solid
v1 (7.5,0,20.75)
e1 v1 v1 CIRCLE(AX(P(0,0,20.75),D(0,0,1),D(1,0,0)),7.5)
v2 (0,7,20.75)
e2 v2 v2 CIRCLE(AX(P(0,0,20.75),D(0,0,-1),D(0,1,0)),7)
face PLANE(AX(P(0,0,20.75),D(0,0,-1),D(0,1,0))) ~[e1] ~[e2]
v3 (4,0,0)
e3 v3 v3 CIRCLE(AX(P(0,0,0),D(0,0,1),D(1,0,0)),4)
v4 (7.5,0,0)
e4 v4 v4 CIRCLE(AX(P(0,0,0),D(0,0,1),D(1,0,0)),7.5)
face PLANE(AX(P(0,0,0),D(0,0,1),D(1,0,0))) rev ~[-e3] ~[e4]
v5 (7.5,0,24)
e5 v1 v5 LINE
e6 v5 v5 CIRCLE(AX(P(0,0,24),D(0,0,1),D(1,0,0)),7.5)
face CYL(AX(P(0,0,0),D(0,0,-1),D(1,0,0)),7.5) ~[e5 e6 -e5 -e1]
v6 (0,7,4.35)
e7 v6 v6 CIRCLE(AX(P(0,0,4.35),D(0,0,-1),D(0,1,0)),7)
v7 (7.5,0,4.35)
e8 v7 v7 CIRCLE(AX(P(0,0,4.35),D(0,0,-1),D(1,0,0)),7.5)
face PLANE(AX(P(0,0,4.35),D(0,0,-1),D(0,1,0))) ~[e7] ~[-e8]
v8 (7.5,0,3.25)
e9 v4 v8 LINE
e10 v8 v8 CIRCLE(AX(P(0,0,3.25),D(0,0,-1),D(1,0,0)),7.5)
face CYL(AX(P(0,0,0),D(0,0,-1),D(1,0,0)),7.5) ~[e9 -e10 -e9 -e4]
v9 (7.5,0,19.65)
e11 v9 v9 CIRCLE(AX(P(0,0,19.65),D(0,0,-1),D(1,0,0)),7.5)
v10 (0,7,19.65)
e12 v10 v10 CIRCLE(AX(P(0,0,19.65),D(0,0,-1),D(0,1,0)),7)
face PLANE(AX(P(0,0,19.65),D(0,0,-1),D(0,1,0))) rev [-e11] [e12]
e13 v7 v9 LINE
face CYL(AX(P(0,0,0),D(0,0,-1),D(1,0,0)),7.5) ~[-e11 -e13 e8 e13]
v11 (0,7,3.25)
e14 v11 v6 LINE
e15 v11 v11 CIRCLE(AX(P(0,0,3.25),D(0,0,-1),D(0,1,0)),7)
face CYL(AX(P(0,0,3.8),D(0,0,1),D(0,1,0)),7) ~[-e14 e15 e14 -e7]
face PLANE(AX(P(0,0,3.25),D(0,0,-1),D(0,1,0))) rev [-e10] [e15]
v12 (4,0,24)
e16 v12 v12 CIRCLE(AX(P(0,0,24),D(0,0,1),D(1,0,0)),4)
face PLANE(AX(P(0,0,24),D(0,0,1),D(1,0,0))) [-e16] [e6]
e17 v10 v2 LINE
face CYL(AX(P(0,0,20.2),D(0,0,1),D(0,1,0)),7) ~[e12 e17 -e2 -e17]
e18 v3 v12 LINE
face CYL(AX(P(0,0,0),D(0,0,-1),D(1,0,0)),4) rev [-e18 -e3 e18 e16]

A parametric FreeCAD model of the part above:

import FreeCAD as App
import Part
import Sketcher
from FreeCAD import Vector
Q = App.Units.Quantity

doc = App.newDocument("Part")
body = doc.addObject("PartDesign::Body", "Body")

# Sketch on XY plane
sketch1 = body.newObject("Sketcher::SketchObject", "Sketch")
sketch1.AttachmentSupport = (doc.getObject("XY_Plane"), [""])
sketch1.MapMode = "FlatFace"
sketch1.addGeometry([
    Part.Circle(Vector(0, 0, 0), Vector(0, 0, 1), 7.5),
    Part.Circle(Vector(0, 0, 0), Vector(0, 0, 1), 4),
], False)
sketch1.addConstraint([
    Sketcher.Constraint("Coincident", 0, 3, -1, 1),
    Sketcher.Constraint("Coincident", 1, 3, -1, 1),
    Sketcher.Constraint("Diameter", 0, Q("15 mm")),
    Sketcher.Constraint("Diameter", 1, Q("8 mm")),
])
pad1 = body.newObject("PartDesign::Pad", "Pad")
pad1.Profile = sketch1
pad1.Length = 24

# Sketch on YZ plane
sketch2 = body.newObject("Sketcher::SketchObject", "Sketch001")
sketch2.AttachmentSupport = (doc.getObject("YZ_Plane"), [""])
sketch2.MapMode = "FlatFace"
sketch2.addGeometry([
    Part.LineSegment(Vector(7, 4.3, 0), Vector(7, 3.2, 0)),  # 0
    Part.LineSegment(Vector(7, 3.2, 0), Vector(7.5, 3.2, 0)),  # 1
    Part.LineSegment(Vector(7.5, 3.2, 0), Vector(7.5, 4.3, 0)),  # 2
    Part.LineSegment(Vector(7.5, 4.3, 0), Vector(7, 4.3, 0)),  # 3
    Part.LineSegment(Vector(7, 20.8, 0), Vector(7, 19.6, 0)),  # 4
    Part.LineSegment(Vector(7, 19.6, 0), Vector(7.5, 19.6, 0)),  # 5
    Part.LineSegment(Vector(7.5, 19.6, 0), Vector(7.5, 20.8, 0)),  # 6
    Part.LineSegment(Vector(7.5, 20.8, 0), Vector(7, 20.8, 0)),  # 7
], False)
sketch2.addConstraint([
    Sketcher.Constraint("Coincident", 0, 2, 1, 1),
    Sketcher.Constraint("Coincident", 1, 2, 2, 1),
    Sketcher.Constraint("Coincident", 2, 2, 3, 1),
    Sketcher.Constraint("Coincident", 3, 2, 0, 1),
    Sketcher.Constraint("Coincident", 4, 2, 5, 1),
    Sketcher.Constraint("Coincident", 5, 2, 6, 1),
    Sketcher.Constraint("Coincident", 6, 2, 7, 1),
    Sketcher.Constraint("Coincident", 7, 2, 4, 1),
    Sketcher.Constraint("Vertical", 0),
    Sketcher.Constraint("Horizontal", 1),
    Sketcher.Constraint("Vertical", 2),
    Sketcher.Constraint("Horizontal", 3),
    Sketcher.Constraint("Vertical", 4),
    Sketcher.Constraint("Horizontal", 5),
    Sketcher.Constraint("Vertical", 6),
    Sketcher.Constraint("Horizontal", 7),
    Sketcher.Constraint("Vertical", 3, 2, 4, 2),
    Sketcher.Constraint("Vertical", 2, 2, 5, 2),
    Sketcher.Constraint("Equal", 2, 4),
    Sketcher.Constraint("DistanceX", 1, 1, 1, 2, Q("0.5 mm")),
    Sketcher.Constraint("DistanceY", 0, 2, 0, 1, Q("1.1 mm")),
    Sketcher.Constraint("DistanceX", -1, 1, 0, 2, Q("7 mm")),
    Sketcher.Constraint("DistanceY", 3, 2, 4, 2, Q("15.3 mm")),
    Sketcher.Constraint("DistanceY", -1, 1, 0, 2, Q("3.25 mm")),
])
groove = body.newObject("PartDesign::Groove", "Groove")
groove.Profile = sketch2
groove.ReferenceAxis = (sketch2, ["V_Axis"])
groove.Angle = 360

doc.recompute()
